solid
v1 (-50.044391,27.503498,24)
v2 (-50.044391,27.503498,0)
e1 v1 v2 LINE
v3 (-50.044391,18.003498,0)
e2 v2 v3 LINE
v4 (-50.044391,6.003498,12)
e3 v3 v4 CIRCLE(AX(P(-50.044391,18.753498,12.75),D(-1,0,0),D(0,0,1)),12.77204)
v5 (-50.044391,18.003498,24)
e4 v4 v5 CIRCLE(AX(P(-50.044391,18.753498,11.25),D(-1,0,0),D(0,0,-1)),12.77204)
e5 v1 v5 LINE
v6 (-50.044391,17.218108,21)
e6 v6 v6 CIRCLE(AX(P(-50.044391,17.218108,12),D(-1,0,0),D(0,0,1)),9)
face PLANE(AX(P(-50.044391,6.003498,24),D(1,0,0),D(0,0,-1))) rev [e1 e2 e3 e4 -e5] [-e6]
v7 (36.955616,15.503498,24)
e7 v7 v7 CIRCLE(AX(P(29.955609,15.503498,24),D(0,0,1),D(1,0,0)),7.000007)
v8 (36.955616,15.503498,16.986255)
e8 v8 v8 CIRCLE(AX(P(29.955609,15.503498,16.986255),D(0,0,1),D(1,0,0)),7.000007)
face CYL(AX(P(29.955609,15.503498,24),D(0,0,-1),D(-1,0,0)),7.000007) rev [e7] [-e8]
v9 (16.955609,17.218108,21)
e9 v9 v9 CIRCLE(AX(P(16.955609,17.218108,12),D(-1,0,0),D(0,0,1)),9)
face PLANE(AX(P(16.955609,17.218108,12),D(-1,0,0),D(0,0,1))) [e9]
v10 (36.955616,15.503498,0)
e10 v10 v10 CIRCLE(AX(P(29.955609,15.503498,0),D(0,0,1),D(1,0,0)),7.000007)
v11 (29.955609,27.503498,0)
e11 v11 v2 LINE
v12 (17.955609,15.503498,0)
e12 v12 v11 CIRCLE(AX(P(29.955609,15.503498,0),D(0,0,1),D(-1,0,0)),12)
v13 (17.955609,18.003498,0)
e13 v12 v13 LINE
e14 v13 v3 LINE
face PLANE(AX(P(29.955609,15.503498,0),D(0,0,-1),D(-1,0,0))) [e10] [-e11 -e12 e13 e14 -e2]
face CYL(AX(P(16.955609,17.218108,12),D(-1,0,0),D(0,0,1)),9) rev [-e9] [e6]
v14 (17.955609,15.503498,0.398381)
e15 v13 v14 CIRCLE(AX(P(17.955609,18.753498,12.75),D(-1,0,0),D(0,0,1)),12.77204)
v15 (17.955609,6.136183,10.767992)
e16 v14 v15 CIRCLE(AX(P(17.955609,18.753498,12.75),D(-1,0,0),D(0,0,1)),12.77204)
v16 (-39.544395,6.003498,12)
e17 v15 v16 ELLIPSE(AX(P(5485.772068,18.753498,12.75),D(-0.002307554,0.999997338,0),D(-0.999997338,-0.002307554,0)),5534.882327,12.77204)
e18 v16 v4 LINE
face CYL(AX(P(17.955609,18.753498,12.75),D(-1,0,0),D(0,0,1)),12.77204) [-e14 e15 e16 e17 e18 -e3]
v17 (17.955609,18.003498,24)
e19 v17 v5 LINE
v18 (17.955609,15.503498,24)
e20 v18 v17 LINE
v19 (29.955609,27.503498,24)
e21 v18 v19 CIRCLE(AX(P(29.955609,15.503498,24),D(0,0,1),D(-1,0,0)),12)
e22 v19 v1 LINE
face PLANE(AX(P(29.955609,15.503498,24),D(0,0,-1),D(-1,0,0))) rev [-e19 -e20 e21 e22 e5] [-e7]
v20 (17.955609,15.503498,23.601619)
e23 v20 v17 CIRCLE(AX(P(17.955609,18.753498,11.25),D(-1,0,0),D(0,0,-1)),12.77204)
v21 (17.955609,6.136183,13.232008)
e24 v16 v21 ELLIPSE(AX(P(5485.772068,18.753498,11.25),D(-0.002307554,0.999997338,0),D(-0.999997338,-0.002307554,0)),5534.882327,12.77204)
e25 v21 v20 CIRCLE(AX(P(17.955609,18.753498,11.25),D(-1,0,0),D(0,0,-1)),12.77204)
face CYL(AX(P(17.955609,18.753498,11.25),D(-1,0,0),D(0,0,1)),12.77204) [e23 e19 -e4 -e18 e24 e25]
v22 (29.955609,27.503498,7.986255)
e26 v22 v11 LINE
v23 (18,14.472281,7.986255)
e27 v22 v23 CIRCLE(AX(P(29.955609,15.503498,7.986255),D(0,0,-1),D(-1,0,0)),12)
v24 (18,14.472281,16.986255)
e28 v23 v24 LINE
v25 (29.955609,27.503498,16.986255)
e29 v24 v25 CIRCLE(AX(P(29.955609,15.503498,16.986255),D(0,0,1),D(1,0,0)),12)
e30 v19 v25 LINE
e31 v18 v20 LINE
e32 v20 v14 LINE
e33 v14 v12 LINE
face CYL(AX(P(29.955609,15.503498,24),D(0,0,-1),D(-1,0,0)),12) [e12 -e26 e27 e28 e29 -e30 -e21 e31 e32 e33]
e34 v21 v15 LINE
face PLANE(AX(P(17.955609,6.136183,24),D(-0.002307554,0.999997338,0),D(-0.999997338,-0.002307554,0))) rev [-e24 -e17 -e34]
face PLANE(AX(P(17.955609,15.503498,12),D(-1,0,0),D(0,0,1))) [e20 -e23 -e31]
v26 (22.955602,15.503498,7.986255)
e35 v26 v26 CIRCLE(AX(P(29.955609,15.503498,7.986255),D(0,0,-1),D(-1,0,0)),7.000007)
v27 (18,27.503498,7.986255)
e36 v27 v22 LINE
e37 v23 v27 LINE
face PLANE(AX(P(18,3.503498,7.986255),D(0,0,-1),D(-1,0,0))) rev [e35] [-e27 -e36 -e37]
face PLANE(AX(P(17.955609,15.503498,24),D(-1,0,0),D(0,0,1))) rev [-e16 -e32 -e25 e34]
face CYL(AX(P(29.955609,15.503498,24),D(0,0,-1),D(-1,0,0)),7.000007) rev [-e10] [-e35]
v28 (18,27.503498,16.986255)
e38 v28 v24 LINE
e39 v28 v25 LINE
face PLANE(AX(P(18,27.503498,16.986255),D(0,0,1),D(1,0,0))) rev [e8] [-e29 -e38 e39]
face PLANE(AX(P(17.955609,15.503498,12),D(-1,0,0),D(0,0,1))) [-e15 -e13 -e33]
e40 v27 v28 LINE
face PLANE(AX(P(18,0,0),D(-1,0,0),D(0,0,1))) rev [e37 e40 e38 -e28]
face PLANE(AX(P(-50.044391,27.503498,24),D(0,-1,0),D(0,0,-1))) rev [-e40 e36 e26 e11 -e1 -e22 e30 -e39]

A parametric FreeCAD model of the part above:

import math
import FreeCAD as App
import Part
import Sketcher

V = App.Vector

doc = App.newDocument("Part")
params = doc.addObject("Spreadsheet::Sheet", "Params")
for row, (alias, value) in enumerate([
    ("sketch1_radius", "12 mm"),
    ("sketch1_width", "80 mm"),
    ("sketch1_height", "21.5 mm"),
    ("pad1_length", "24 mm"),
    ("sketch2_width", "24 mm"),
    ("sketch2_height", "9 mm"),
    ("pocket1_length", "32 mm"),
    ("sketch3_width", "8 mm"),
    ("sketch3_height", "24 mm"),
    ("pocket2_length", "68 mm"),
    ("sketch4_diameter", "18 mm"),
    ("pocket3_length", "67 mm"),
], start=1):
    params.set(f"A{row}", alias)
    params.set(f"B{row}", "=" + value)
    params.setAlias(f"B{row}", alias)

body = doc.addObject("PartDesign::Body", "Body")

sketch1 = body.newObject("Sketcher::SketchObject", "Sketch")
sketch1.AttachmentSupport = (doc.getObject("XY_Plane"), [""])
sketch1.MapMode = "FlatFace"
sketch1.addGeometry([
    Part.LineSegment(V(30, 27.5, 0), V(-50, 27.5, 0)),
    Part.LineSegment(V(-50, 27.5, 0), V(-50, 6, 0)),
    Part.LineSegment(V(-50, 6, 0), V(-48.6, 6, 0)),
    Part.LineSegment(V(-48.6, 6, 0), V(-48.6, 5, 0)),
    Part.LineSegment(V(-48.6, 5, 0), V(-39.5, 5, 0)),
    Part.LineSegment(V(-39.5, 5, 0), V(-39.5, 6, 0)),
    Part.LineSegment(V(-39.5, 6, 0), V(18, 6.1, 0)),
    Part.LineSegment(V(18, 6.1, 0), V(18, 15.5, 0)),
    Part.ArcOfCircle(Part.Circle(V(30, 15.5, 0), V(0, 0, 1), 12), math.radians(180), math.radians(450)),
    Part.Circle(V(30, 15.5, 0), V(0, 0, 1), 7),
], False)
sketch1.addConstraint([
    Sketcher.Constraint("Coincident", 0, 2, 1, 1),
    Sketcher.Constraint("Coincident", 1, 2, 2, 1),
    Sketcher.Constraint("Coincident", 2, 2, 3, 1),
    Sketcher.Constraint("Coincident", 3, 2, 4, 1),
    Sketcher.Constraint("Coincident", 4, 2, 5, 1),
    Sketcher.Constraint("Coincident", 5, 2, 6, 1),
    Sketcher.Constraint("Coincident", 6, 2, 7, 1),
    Sketcher.Constraint("Tangent", 7, 2, 8, 1),
    Sketcher.Constraint("Tangent", 8, 2, 0, 1),
    Sketcher.Constraint("Horizontal", 0),
    Sketcher.Constraint("Vertical", 1),
    Sketcher.Constraint("Horizontal", 2),
    Sketcher.Constraint("Vertical", 3),
    Sketcher.Constraint("Horizontal", 4),
    Sketcher.Constraint("Vertical", 5),
    Sketcher.Constraint("Vertical", 7),
    Sketcher.Constraint("Coincident", 9, 3, 8, 3),
    Sketcher.Constraint("Horizontal", 2, 2, 5, 2),
    Sketcher.Constraint("Radius", 8, 12.0),
    Sketcher.Constraint("DistanceX", 0, 2, 0, 1, 80.0),
    Sketcher.Constraint("DistanceY", 1, 2, 1, 1, 21.5),
    Sketcher.Constraint("DistanceX", 1, 2, 4, 2, 10.5),
    Sketcher.Constraint("Diameter", 9, 14.000014),
    Sketcher.Constraint("DistanceY", -1, 1, 8, 3, 15.503498),
    Sketcher.Constraint("DistanceX", 2, 1, 2, 2, 1.472336),
    Sketcher.Constraint("DistanceY", 3, 2, 3, 1, 0.988276),
    Sketcher.Constraint("DistanceY", 7, 1, 7, 2, 9.367315),
    Sketcher.Constraint("DistanceX", -1, 1, 8, 3, 29.955609),
])
sketch1.setExpression("Constraints[18]", "Params.sketch1_radius")
sketch1.setExpression("Constraints[19]", "Params.sketch1_width")
sketch1.setExpression("Constraints[20]", "Params.sketch1_height")
pad1 = body.newObject("PartDesign::Pad", "Pad")
pad1.Profile = sketch1
pad1.setExpression("Length", "Params.pad1_length")

sketch2 = body.newObject("Sketcher::SketchObject", "Sketch001")
sketch2.AttachmentSupport = (doc.getObject("YZ_Plane"), [""])
sketch2.MapMode = "FlatFace"
sketch2.AttachmentOffset = App.Placement(V(0, 0, 50), App.Rotation())
sketch2.addGeometry([
    Part.LineSegment(V(28, 17, 0), V(4, 17, 0)),
    Part.LineSegment(V(4, 17, 0), V(4, 8, 0)),
    Part.LineSegment(V(4, 8, 0), V(28, 8, 0)),
    Part.LineSegment(V(28, 8, 0), V(28, 17, 0)),
], False)
sketch2.addConstraint([
    Sketcher.Constraint("Coincident", 0, 2, 1, 1),
    Sketcher.Constraint("Coincident", 1, 2, 2, 1),
    Sketcher.Constraint("Coincident", 2, 2, 3, 1),
    Sketcher.Constraint("Coincident", 3, 2, 0, 1),
    Sketcher.Constraint("Horizontal", 0),
    Sketcher.Constraint("Vertical", 1),
    Sketcher.Constraint("Horizontal", 2),
    Sketcher.Constraint("Vertical", 3),
    Sketcher.Constraint("DistanceX", 0, 2, 0, 1, 24.0),
    Sketcher.Constraint("DistanceY", 1, 2, 1, 1, 9.0),
    Sketcher.Constraint("DistanceX", -1, 1, 0, 2, 3.503498),
    Sketcher.Constraint("DistanceY", -1, 1, 0, 2, 16.986255),
])
sketch2.setExpression("Constraints[8]", "Params.sketch2_width")
sketch2.setExpression("Constraints[9]", "Params.sketch2_height")
pocket1 = body.newObject("PartDesign::Pocket", "Pocket")
pocket1.Profile = sketch2
pocket1.setExpression("Length", "Params.pocket1_length")

sketch3 = body.newObject("Sketcher::SketchObject", "Sketch002")
sketch3.AttachmentSupport = (doc.getObject("YZ_Plane"), [""])
sketch3.MapMode = "FlatFace"
sketch3.AttachmentOffset = App.Placement(V(0, 0, -50.044391), App.Rotation())
sketch3.addGeometry([
    Part.LineSegment(V(38, -11, 0), V(-7, -11, 0)),
    Part.LineSegment(V(-7, -11, 0), V(-7, 35, 0)),
    Part.LineSegment(V(-7, 35, 0), V(38, 35, 0)),
    Part.LineSegment(V(38, 35, 0), V(38, -11, 0)),
    Part.LineSegment(V(20, 0, 0), V(28, 0, 0)),
    Part.LineSegment(V(28, 0, 0), V(28, 24, 0)),
    Part.LineSegment(V(28, 24, 0), V(20, 24, 0)),
    Part.ArcOfCircle(Part.Circle(V(19, 11, 0), V(0, 0, 1), 13), math.radians(87), math.radians(177)),
    Part.ArcOfCircle(Part.Circle(V(19, 13, 0), V(0, 0, 1), 13), math.radians(-177), math.radians(-87)),
], False)
sketch3.addConstraint([
    Sketcher.Constraint("Coincident", 0, 2, 1, 1),
    Sketcher.Constraint("Coincident", 1, 2, 2, 1),
    Sketcher.Constraint("Coincident", 2, 2, 3, 1),
    Sketcher.Constraint("Coincident", 3, 2, 0, 1),
    Sketcher.Constraint("Coincident", 4, 2, 5, 1),
    Sketcher.Constraint("Coincident", 5, 2, 6, 1),
    Sketcher.Constraint("Coincident", 6, 2, 7, 1),
    Sketcher.Constraint("Coincident", 7, 2, 8, 1),
    Sketcher.Constraint("Coincident", 8, 2, 4, 1),
    Sketcher.Constraint("Horizontal", 0),
    Sketcher.Constraint("Vertical", 1),
    Sketcher.Constraint("Horizontal", 2),
    Sketcher.Constraint("Vertical", 3),
    Sketcher.Constraint("Horizontal", 4),
    Sketcher.Constraint("Vertical", 5),
    Sketcher.Constraint("Horizontal", 6),
    Sketcher.Constraint("Equal", 7, 8),
    Sketcher.Constraint("PointOnObject", 4, 2, -1),
    Sketcher.Constraint("Vertical", 7, 3, 8, 3),
    Sketcher.Constraint("Vertical", 6, 2, 8, 2),
    Sketcher.Constraint("Equal", 2, 1),
    Sketcher.Constraint("DistanceX", 4, 1, 4, 2, 8.0),
    Sketcher.Constraint("DistanceY", 5, 1, 5, 2, 24.0),
    Sketcher.Constraint("DistanceY", 7, 3, 8, 3, 1.5),
    Sketcher.Constraint("DistanceX", 7, 2, 6, 2, 13.5),
    Sketcher.Constraint("DistanceX", 0, 2, 0, 1, 45.612),
    Sketcher.Constraint("DistanceX", 0, 2, -1, 1, 7.303),
    Sketcher.Constraint("DistanceY", 0, 2, -1, 1, 10.806),
    Sketcher.Constraint("DistanceX", -1, 1, 7, 3, 18.753498),
])
sketch3.setExpression("Constraints[21]", "Params.sketch3_width")
sketch3.setExpression("Constraints[22]", "Params.sketch3_height")
pocket2 = body.newObject("PartDesign::Pocket", "Pocket001")
pocket2.Profile = sketch3
pocket2.setExpression("Length", "Params.pocket2_length")
pocket2.Reversed = True

sketch4 = body.newObject("Sketcher::SketchObject", "Sketch003")
sketch4.AttachmentSupport = (doc.getObject("YZ_Plane"), [""])
sketch4.MapMode = "FlatFace"
sketch4.AttachmentOffset = App.Placement(V(0, 0, -50.044391), App.Rotation())
sketch4.addGeometry(Part.Circle(V(17, 12, 0), V(0, 0, 1), 9), False)
sketch4.addConstraint([
    Sketcher.Constraint("Diameter", 0, 18.0),
    Sketcher.Constraint("DistanceY", -1, 1, 0, 3, 12.0),
    Sketcher.Constraint("DistanceX", -1, 1, 0, 3, 17.218108),
])
sketch4.setExpression("Constraints[0]", "Params.sketch4_diameter")
pocket3 = body.newObject("PartDesign::Pocket", "Pocket002")
pocket3.Profile = sketch4
pocket3.setExpression("Length", "Params.pocket3_length")
pocket3.Reversed = True

doc.recompute()
